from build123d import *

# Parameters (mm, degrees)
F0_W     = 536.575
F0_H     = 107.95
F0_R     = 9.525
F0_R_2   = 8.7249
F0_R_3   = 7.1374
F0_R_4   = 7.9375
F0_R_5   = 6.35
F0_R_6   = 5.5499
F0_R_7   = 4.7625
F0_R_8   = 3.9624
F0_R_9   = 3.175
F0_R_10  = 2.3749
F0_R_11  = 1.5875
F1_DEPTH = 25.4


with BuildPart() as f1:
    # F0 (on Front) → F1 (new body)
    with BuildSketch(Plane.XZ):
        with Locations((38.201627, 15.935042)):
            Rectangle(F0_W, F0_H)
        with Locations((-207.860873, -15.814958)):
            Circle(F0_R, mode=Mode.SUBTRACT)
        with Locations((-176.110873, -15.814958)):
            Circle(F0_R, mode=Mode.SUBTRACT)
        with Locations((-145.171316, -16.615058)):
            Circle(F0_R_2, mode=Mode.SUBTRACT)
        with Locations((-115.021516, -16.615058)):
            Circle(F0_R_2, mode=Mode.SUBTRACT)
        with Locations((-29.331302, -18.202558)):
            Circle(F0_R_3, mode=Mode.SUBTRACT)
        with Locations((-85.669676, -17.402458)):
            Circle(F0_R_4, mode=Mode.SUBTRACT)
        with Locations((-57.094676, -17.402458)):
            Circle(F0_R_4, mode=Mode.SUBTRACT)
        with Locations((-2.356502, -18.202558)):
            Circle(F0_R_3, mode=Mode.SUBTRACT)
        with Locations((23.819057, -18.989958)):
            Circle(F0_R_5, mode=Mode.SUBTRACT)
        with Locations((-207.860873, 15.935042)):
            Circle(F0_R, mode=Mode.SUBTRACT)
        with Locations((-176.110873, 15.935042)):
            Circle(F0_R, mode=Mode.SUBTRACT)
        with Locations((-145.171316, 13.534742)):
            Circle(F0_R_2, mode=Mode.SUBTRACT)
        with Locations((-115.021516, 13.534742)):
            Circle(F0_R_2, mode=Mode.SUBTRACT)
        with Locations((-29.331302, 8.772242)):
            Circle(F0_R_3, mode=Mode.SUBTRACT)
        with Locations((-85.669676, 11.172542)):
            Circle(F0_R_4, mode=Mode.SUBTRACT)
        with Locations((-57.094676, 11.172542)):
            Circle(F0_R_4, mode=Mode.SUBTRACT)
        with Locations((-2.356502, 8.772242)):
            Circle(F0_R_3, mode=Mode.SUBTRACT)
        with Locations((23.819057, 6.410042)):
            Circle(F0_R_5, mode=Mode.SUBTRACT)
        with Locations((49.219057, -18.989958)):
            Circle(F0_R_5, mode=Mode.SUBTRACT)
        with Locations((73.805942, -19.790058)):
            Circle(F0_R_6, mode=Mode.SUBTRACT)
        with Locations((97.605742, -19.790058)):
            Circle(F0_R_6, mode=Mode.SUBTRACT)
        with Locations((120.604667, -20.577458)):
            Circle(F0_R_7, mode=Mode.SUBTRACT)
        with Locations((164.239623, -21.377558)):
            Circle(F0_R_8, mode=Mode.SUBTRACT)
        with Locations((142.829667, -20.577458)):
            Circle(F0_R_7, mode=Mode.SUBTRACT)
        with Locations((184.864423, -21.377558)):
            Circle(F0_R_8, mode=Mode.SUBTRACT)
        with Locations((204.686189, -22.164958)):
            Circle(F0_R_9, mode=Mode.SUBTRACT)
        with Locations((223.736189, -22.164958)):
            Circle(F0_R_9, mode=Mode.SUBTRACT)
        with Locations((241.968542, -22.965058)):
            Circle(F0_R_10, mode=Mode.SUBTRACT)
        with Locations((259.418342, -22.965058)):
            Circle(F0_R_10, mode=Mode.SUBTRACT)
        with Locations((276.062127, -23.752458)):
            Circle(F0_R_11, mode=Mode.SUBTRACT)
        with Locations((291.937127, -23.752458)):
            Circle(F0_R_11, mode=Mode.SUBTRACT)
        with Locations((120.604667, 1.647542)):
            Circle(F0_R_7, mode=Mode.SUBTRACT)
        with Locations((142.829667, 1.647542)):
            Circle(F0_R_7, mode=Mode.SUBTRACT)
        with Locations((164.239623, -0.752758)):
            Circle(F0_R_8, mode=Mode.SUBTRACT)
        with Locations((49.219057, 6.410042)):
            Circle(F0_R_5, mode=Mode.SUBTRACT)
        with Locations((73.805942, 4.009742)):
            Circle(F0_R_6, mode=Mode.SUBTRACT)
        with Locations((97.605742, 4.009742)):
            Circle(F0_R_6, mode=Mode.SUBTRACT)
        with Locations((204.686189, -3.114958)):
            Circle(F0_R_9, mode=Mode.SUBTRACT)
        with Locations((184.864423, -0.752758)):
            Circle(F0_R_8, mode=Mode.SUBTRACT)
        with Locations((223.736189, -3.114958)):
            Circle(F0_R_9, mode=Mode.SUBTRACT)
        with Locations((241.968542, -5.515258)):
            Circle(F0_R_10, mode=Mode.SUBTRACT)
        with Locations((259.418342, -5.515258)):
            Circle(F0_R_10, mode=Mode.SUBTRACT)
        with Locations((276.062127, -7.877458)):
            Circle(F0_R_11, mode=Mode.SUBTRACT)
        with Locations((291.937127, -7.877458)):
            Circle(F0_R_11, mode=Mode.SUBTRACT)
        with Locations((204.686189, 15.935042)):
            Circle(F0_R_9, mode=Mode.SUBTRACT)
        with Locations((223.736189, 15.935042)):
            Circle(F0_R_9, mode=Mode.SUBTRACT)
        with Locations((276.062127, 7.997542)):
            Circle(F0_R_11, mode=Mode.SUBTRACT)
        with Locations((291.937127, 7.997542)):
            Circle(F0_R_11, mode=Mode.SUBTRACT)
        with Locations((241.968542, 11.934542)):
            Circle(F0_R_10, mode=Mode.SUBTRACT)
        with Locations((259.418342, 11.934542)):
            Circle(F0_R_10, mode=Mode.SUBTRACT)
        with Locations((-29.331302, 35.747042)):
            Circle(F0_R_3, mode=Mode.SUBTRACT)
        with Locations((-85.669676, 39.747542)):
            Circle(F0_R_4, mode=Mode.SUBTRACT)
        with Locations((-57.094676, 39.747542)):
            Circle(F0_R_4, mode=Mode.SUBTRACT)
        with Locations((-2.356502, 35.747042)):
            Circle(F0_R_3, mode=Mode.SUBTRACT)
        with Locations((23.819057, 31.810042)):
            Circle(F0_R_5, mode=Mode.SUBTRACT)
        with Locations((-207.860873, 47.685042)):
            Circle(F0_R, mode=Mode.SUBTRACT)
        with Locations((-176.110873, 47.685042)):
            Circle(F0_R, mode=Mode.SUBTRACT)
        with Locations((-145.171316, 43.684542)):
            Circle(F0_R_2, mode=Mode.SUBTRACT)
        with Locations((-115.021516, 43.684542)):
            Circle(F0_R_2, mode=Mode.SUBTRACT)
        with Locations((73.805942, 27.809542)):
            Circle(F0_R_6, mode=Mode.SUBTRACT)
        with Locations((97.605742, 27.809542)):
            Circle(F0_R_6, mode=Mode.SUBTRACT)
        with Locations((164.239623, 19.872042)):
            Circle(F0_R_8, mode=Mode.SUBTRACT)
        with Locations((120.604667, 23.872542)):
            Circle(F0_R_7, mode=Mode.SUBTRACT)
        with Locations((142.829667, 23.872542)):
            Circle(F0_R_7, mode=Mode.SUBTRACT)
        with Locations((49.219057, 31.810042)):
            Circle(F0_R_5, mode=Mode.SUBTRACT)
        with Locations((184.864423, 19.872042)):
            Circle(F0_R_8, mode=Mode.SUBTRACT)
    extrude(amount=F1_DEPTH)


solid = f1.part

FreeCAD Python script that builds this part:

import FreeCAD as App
import Part
import Sketcher

V = App.Vector
Q = App.Units.Quantity

doc = App.newDocument("Part")
body = doc.addObject("PartDesign::Body", "Body")

# Sketch on XZ plane
sketch1 = body.newObject("Sketcher::SketchObject", "Sketch")
sketch1.AttachmentSupport = (doc.getObject("XZ_Plane"), [""])
sketch1.MapMode = "FlatFace"
sketch1.addGeometry([
    Part.LineSegment(V(-230.1, 69.9, 0), V(-230.1, -38, 0)),  # 0
    Part.LineSegment(V(-230.1, -38, 0), V(306.5, -38, 0)),  # 1
    Part.LineSegment(V(306.5, -38, 0), V(306.5, 69.9, 0)),  # 2
    Part.LineSegment(V(306.5, 69.9, 0), V(-230.1, 69.9, 0)),  # 3
    Part.Circle(V(-207.9, -15.8, 0), V(0, 0, 1), 9.5),  # 4
    Part.Circle(V(-176.1, -15.8, 0), V(0, 0, 1), 9.5),  # 5
    Part.Circle(V(-145.2, -16.6, 0), V(0, 0, 1), 8.7),  # 6
    Part.Circle(V(-115, -16.6, 0), V(0, 0, 1), 8.7),  # 7
    Part.Circle(V(-85.7, -17.4, 0), V(0, 0, 1), 7.9),  # 8
    Part.Circle(V(-29.3, -18.2, 0), V(0, 0, 1), 7.1),  # 9
    Part.Circle(V(-57.1, -17.4, 0), V(0, 0, 1), 7.9),  # 10
    Part.Circle(V(-2.4, -18.2, 0), V(0, 0, 1), 7.1),  # 11
    Part.Circle(V(23.8, -19, 0), V(0, 0, 1), 6.3),  # 12
    Part.Circle(V(-145.2, 13.5, 0), V(0, 0, 1), 8.7),  # 13
    Part.Circle(V(-115, 13.5, 0), V(0, 0, 1), 8.7),  # 14
    Part.Circle(V(-29.3, 8.8, 0), V(0, 0, 1), 7.1),  # 15
    Part.Circle(V(-85.7, 11.2, 0), V(0, 0, 1), 7.9),  # 16
    Part.Circle(V(-57.1, 11.2, 0), V(0, 0, 1), 7.9),  # 17
    Part.Circle(V(-2.4, 8.8, 0), V(0, 0, 1), 7.1),  # 18
    Part.Circle(V(23.8, 6.4, 0), V(0, 0, 1), 6.3),  # 19
    Part.Circle(V(49.2, -19, 0), V(0, 0, 1), 6.3),  # 20
    Part.Circle(V(73.8, -19.8, 0), V(0, 0, 1), 5.5),  # 21
    Part.Circle(V(97.6, -19.8, 0), V(0, 0, 1), 5.5),  # 22
    Part.Circle(V(120.6, -20.6, 0), V(0, 0, 1), 4.8),  # 23
    Part.Circle(V(142.8, -20.6, 0), V(0, 0, 1), 4.8),  # 24
    Part.Circle(V(164.2, -21.4, 0), V(0, 0, 1), 4),  # 25
    Part.Circle(V(184.9, -21.4, 0), V(0, 0, 1), 4),  # 26
    Part.Circle(V(204.7, -22.2, 0), V(0, 0, 1), 3.2),  # 27
    Part.Circle(V(223.7, -22.2, 0), V(0, 0, 1), 3.2),  # 28
    Part.Circle(V(242, -23, 0), V(0, 0, 1), 2.4),  # 29
    Part.Circle(V(259.4, -23, 0), V(0, 0, 1), 2.4),  # 30
    Part.Circle(V(276.1, -23.8, 0), V(0, 0, 1), 1.6),  # 31
    Part.Circle(V(291.9, -23.8, 0), V(0, 0, 1), 1.6),  # 32
    Part.Circle(V(242, -5.5, 0), V(0, 0, 1), 2.4),  # 33
    Part.Circle(V(259.4, -5.5, 0), V(0, 0, 1), 2.4),  # 34
    Part.Circle(V(276.1, -7.9, 0), V(0, 0, 1), 1.6),  # 35
    Part.Circle(V(291.9, -7.9, 0), V(0, 0, 1), 1.6),  # 36
    Part.Circle(V(73.8, 4, 0), V(0, 0, 1), 5.5),  # 37
    Part.Circle(V(97.6, 4, 0), V(0, 0, 1), 5.5),  # 38
    Part.Circle(V(164.2, -0.8, 0), V(0, 0, 1), 4),  # 39
    Part.Circle(V(120.6, 1.6, 0), V(0, 0, 1), 4.8),  # 40
    Part.Circle(V(142.8, 1.6, 0), V(0, 0, 1), 4.8),  # 41
    Part.Circle(V(49.2, 6.4, 0), V(0, 0, 1), 6.3),  # 42
    Part.Circle(V(184.9, -0.8, 0), V(0, 0, 1), 4),  # 43
    Part.Circle(V(204.7, -3.1, 0), V(0, 0, 1), 3.2),  # 44
    Part.Circle(V(223.7, -3.1, 0), V(0, 0, 1), 3.2),  # 45
    Part.Circle(V(276.1, 8, 0), V(0, 0, 1), 1.6),  # 46
    Part.Circle(V(291.9, 8, 0), V(0, 0, 1), 1.6),  # 47
    Part.Circle(V(242, 11.9, 0), V(0, 0, 1), 2.4),  # 48
    Part.Circle(V(259.4, 11.9, 0), V(0, 0, 1), 2.4),  # 49
    Part.Circle(V(-207.9, 15.9, 0), V(0, 0, 1), 9.5),  # 50
    Part.Circle(V(-176.1, 15.9, 0), V(0, 0, 1), 9.5),  # 51
    Part.Circle(V(-29.3, 35.7, 0), V(0, 0, 1), 7.1),  # 52
    Part.Circle(V(-2.4, 35.7, 0), V(0, 0, 1), 7.1),  # 53
    Part.Circle(V(23.8, 31.8, 0), V(0, 0, 1), 6.3),  # 54
    Part.Circle(V(-145.2, 43.7, 0), V(0, 0, 1), 8.7),  # 55
    Part.Circle(V(-115, 43.7, 0), V(0, 0, 1), 8.7),  # 56
    Part.Circle(V(-207.9, 47.7, 0), V(0, 0, 1), 9.5),  # 57
    Part.Circle(V(-176.1, 47.7, 0), V(0, 0, 1), 9.5),  # 58
    Part.Circle(V(-85.7, 39.7, 0), V(0, 0, 1), 7.9),  # 59
    Part.Circle(V(-57.1, 39.7, 0), V(0, 0, 1), 7.9),  # 60
    Part.Circle(V(164.2, 19.9, 0), V(0, 0, 1), 4),  # 61
    Part.Circle(V(120.6, 23.9, 0), V(0, 0, 1), 4.8),  # 62
    Part.Circle(V(142.8, 23.9, 0), V(0, 0, 1), 4.8),  # 63
    Part.Circle(V(73.8, 27.8, 0), V(0, 0, 1), 5.5),  # 64
    Part.Circle(V(97.6, 27.8, 0), V(0, 0, 1), 5.5),  # 65
    Part.Circle(V(49.2, 31.8, 0), V(0, 0, 1), 6.3),  # 66
    Part.Circle(V(184.9, 19.9, 0), V(0, 0, 1), 4),  # 67
    Part.Circle(V(204.7, 15.9, 0), V(0, 0, 1), 3.2),  # 68
    Part.Circle(V(223.7, 15.9, 0), V(0, 0, 1), 3.2),  # 69
], False)
sketch1.addConstraint([
    Sketcher.Constraint("Coincident", 0, 2, 1, 1),
    Sketcher.Constraint("Coincident", 1, 2, 2, 1),
    Sketcher.Constraint("Coincident", 2, 2, 3, 1),
    Sketcher.Constraint("Coincident", 3, 2, 0, 1),
    Sketcher.Constraint("Vertical", 0),
    Sketcher.Constraint("Horizontal", 1),
    Sketcher.Constraint("Vertical", 2),
    Sketcher.Constraint("Horizontal", 3),
    Sketcher.Constraint("Equal", 4, 5),
    Sketcher.Constraint("Equal", 6, 7),
    Sketcher.Constraint("Equal", 8, 10),
    Sketcher.Constraint("Equal", 9, 11),
    Sketcher.Constraint("Equal", 7, 13),
    Sketcher.Constraint("Equal", 13, 14),
    Sketcher.Constraint("Equal", 11, 15),
    Sketcher.Constraint("Equal", 10, 16),
    Sketcher.Constraint("Equal", 16, 17),
    Sketcher.Constraint("Equal", 15, 18),
    Sketcher.Constraint("Equal", 12, 19),
    Sketcher.Constraint("Equal", 19, 20),
    Sketcher.Constraint("Equal", 21, 22),
    Sketcher.Constraint("Equal", 23, 24),
    Sketcher.Constraint("Equal", 25, 26),
    Sketcher.Constraint("Equal", 27, 28),
    Sketcher.Constraint("Equal", 29, 30),
    Sketcher.Constraint("Equal", 31, 32),
    Sketcher.Constraint("Equal", 30, 33),
    Sketcher.Constraint("Equal", 33, 34),
    Sketcher.Constraint("Equal", 32, 35),
    Sketcher.Constraint("Equal", 35, 36),
    Sketcher.Constraint("Equal", 22, 37),
    Sketcher.Constraint("Equal", 37, 38),
    Sketcher.Constraint("Equal", 26, 39),
    Sketcher.Constraint("Equal", 24, 40),
    Sketcher.Constraint("Equal", 40, 41),
    Sketcher.Constraint("Equal", 20, 42),
    Sketcher.Constraint("Equal", 39, 43),
    Sketcher.Constraint("Equal", 28, 44),
    Sketcher.Constraint("Equal", 44, 45),
    Sketcher.Constraint("Equal", 36, 46),
    Sketcher.Constraint("Equal", 46, 47),
    Sketcher.Constraint("Equal", 34, 48),
    Sketcher.Constraint("Equal", 48, 49),
    Sketcher.Constraint("Equal", 5, 50),
    Sketcher.Constraint("Equal", 50, 51),
    Sketcher.Constraint("Equal", 18, 52),
    Sketcher.Constraint("Equal", 52, 53),
    Sketcher.Constraint("Equal", 42, 54),
    Sketcher.Constraint("Equal", 14, 55),
    Sketcher.Constraint("Equal", 55, 56),
    Sketcher.Constraint("Equal", 51, 57),
    Sketcher.Constraint("Equal", 57, 58),
    Sketcher.Constraint("Equal", 17, 59),
    Sketcher.Constraint("Equal", 59, 60),
    Sketcher.Constraint("Equal", 43, 61),
    Sketcher.Constraint("Equal", 41, 62),
    Sketcher.Constraint("Equal", 62, 63),
    Sketcher.Constraint("Equal", 38, 64),
    Sketcher.Constraint("Equal", 64, 65),
    Sketcher.Constraint("Equal", 54, 66),
    Sketcher.Constraint("Equal", 61, 67),
    Sketcher.Constraint("Equal", 45, 68),
    Sketcher.Constraint("Equal", 68, 69),
    Sketcher.Constraint("Horizontal", 4, 3, 5, 3),
    Sketcher.Constraint("Horizontal", 6, 3, 7, 3),
    Sketcher.Constraint("Horizontal", 8, 3, 10, 3),
    Sketcher.Constraint("Horizontal", 9, 3, 11, 3),
    Sketcher.Constraint("Horizontal", 13, 3, 14, 3),
    Sketcher.Constraint("Horizontal", 16, 3, 17, 3),
    Sketcher.Constraint("Horizontal", 15, 3, 18, 3),
    Sketcher.Constraint("Horizontal", 12, 3, 20, 3),
    Sketcher.Constraint("Horizontal", 21, 3, 22, 3),
    Sketcher.Constraint("Horizontal", 23, 3, 24, 3),
    Sketcher.Constraint("Horizontal", 25, 3, 26, 3),
    Sketcher.Constraint("Horizontal", 27, 3, 28, 3),
    Sketcher.Constraint("Horizontal", 29, 3, 30, 3),
    Sketcher.Constraint("Horizontal", 31, 3, 32, 3),
    Sketcher.Constraint("Horizontal", 33, 3, 34, 3),
    Sketcher.Constraint("Horizontal", 35, 3, 36, 3),
    Sketcher.Constraint("Horizontal", 37, 3, 38, 3),
    Sketcher.Constraint("Horizontal", 40, 3, 41, 3),
    Sketcher.Constraint("Horizontal", 19, 3, 42, 3),
    Sketcher.Constraint("Horizontal", 39, 3, 43, 3),
    Sketcher.Constraint("Horizontal", 44, 3, 45, 3),
    Sketcher.Constraint("Horizontal", 46, 3, 47, 3),
    Sketcher.Constraint("Horizontal", 48, 3, 49, 3),
    Sketcher.Constraint("Horizontal", 50, 3, 51, 3),
    Sketcher.Constraint("Horizontal", 52, 3, 53, 3),
    Sketcher.Constraint("Horizontal", 55, 3, 56, 3),
    Sketcher.Constraint("Horizontal", 57, 3, 58, 3),
    Sketcher.Constraint("Horizontal", 59, 3, 60, 3),
    Sketcher.Constraint("Horizontal", 62, 3, 63, 3),
    Sketcher.Constraint("Horizontal", 64, 3, 65, 3),
    Sketcher.Constraint("Horizontal", 54, 3, 66, 3),
    Sketcher.Constraint("Horizontal", 61, 3, 67, 3),
    Sketcher.Constraint("Horizontal", 51, 3, 68, 3),
    Sketcher.Constraint("Horizontal", 68, 3, 69, 3),
    Sketcher.Constraint("Vertical", 6, 3, 13, 3),
    Sketcher.Constraint("Vertical", 7, 3, 14, 3),
    Sketcher.Constraint("Vertical", 9, 3, 15, 3),
    Sketcher.Constraint("Vertical", 8, 3, 16, 3),
    Sketcher.Constraint("Vertical", 10, 3, 17, 3),
    Sketcher.Constraint("Vertical", 11, 3, 18, 3),
    Sketcher.Constraint("Vertical", 12, 3, 19, 3),
    Sketcher.Constraint("Vertical", 29, 3, 33, 3),
    Sketcher.Constraint("Vertical", 30, 3, 34, 3),
    Sketcher.Constraint("Vertical", 31, 3, 35, 3),
    Sketcher.Constraint("Vertical", 32, 3, 36, 3),
    Sketcher.Constraint("Vertical", 21, 3, 37, 3),
    Sketcher.Constraint("Vertical", 22, 3, 38, 3),
    Sketcher.Constraint("Vertical", 25, 3, 39, 3),
    Sketcher.Constraint("Vertical", 23, 3, 40, 3),
    Sketcher.Constraint("Vertical", 24, 3, 41, 3),
    Sketcher.Constraint("Vertical", 20, 3, 42, 3),
    Sketcher.Constraint("Vertical", 26, 3, 43, 3),
    Sketcher.Constraint("Vertical", 27, 3, 44, 3),
    Sketcher.Constraint("Vertical", 28, 3, 45, 3),
    Sketcher.Constraint("Vertical", 35, 3, 46, 3),
    Sketcher.Constraint("Vertical", 36, 3, 47, 3),
    Sketcher.Constraint("Vertical", 33, 3, 48, 3),
    Sketcher.Constraint("Vertical", 34, 3, 49, 3),
    Sketcher.Constraint("Vertical", 4, 3, 50, 3),
    Sketcher.Constraint("Vertical", 5, 3, 51, 3),
    Sketcher.Constraint("Vertical", 15, 3, 52, 3),
    Sketcher.Constraint("Vertical", 18, 3, 53, 3),
    Sketcher.Constraint("Vertical", 19, 3, 54, 3),
    Sketcher.Constraint("Vertical", 13, 3, 55, 3),
    Sketcher.Constraint("Vertical", 14, 3, 56, 3),
    Sketcher.Constraint("Vertical", 50, 3, 57, 3),
    Sketcher.Constraint("Vertical", 51, 3, 58, 3),
    Sketcher.Constraint("Vertical", 16, 3, 59, 3),
    Sketcher.Constraint("Vertical", 17, 3, 60, 3),
    Sketcher.Constraint("Vertical", 39, 3, 61, 3),
    Sketcher.Constraint("Vertical", 40, 3, 62, 3),
    Sketcher.Constraint("Vertical", 41, 3, 63, 3),
    Sketcher.Constraint("Vertical", 37, 3, 64, 3),
    Sketcher.Constraint("Vertical", 38, 3, 65, 3),
    Sketcher.Constraint("Vertical", 42, 3, 66, 3),
    Sketcher.Constraint("Vertical", 43, 3, 67, 3),
    Sketcher.Constraint("Vertical", 44, 3, 68, 3),
    Sketcher.Constraint("Vertical", 45, 3, 69, 3),
    Sketcher.Constraint("Diameter", 12, Q("0.5 in")),
    Sketcher.Constraint("Diameter", 4, Q("0.75 in")),
    Sketcher.Constraint("Diameter", 27, Q("0.25 in")),
    Sketcher.Constraint("Diameter", 6, Q("0.687 in")),
    Sketcher.Constraint("Diameter", 8, Q("0.625 in")),
    Sketcher.Constraint("Diameter", 9, Q("0.562 in")),
    Sketcher.Constraint("Diameter", 21, Q("0.437 in")),
    Sketcher.Constraint("Diameter", 23, Q("0.375 in")),
    Sketcher.Constraint("Diameter", 25, Q("0.312 in")),
    Sketcher.Constraint("Diameter", 29, Q("0.187 in")),
    Sketcher.Constraint("Diameter", 31, Q("0.125 in")),
    Sketcher.Constraint("DistanceY", 0, 2, 0, 1, Q("4.25 in")),
    Sketcher.Constraint("DistanceX", 1, 1, 1, 2, Q("21.125 in")),
    Sketcher.Constraint("DistanceX", 11, 3, -1, 1, Q("2.356502 mm")),
    Sketcher.Constraint("DistanceY", 4, 3, -1, 1, Q("15.814958 mm")),
    Sketcher.Constraint("DistanceY", 6, 3, -1, 1, Q("16.615058 mm")),
    Sketcher.Constraint("DistanceY", 9, 3, -1, 1, Q("18.202558 mm")),
    Sketcher.Constraint("DistanceY", 12, 3, -1, 1, Q("18.989958 mm")),
    Sketcher.Constraint("DistanceY", -1, 1, 19, 3, Q("6.410042 mm")),
    Sketcher.Constraint("DistanceX", -1, 1, 21, 3, Q("73.805942 mm")),
    Sketcher.Constraint("DistanceY", 23, 3, -1, 1, Q("20.577458 mm")),
    Sketcher.Constraint("DistanceY", 25, 3, -1, 1, Q("21.377558 mm")),
    Sketcher.Constraint("DistanceX", -1, 1, 27, 3, Q("204.686189 mm")),
    Sketcher.Constraint("DistanceX", -1, 1, 28, 3, Q("223.736189 mm")),
    Sketcher.Constraint("DistanceX", -1, 1, 30, 3, Q("259.418342 mm")),
    Sketcher.Constraint("DistanceY", 31, 3, -1, 1, Q("23.752458 mm")),
    Sketcher.Constraint("DistanceY", 33, 3, -1, 1, Q("5.515258 mm")),
    Sketcher.Constraint("DistanceY", 39, 3, -1, 1, Q("0.752758 mm")),
    Sketcher.Constraint("DistanceY", 44, 3, -1, 1, Q("3.114958 mm")),
    Sketcher.Constraint("DistanceY", -1, 1, 50, 3, Q("15.935042 mm")),
    Sketcher.Constraint("DistanceY", -1, 1, 54, 3, Q("31.810042 mm")),
    Sketcher.Constraint("DistanceY", -1, 1, 62, 3, Q("23.872542 mm")),
    Sketcher.Constraint("DistanceX", 4, 3, -1, 1, Q("207.860873 mm")),
    Sketcher.Constraint("DistanceX", 5, 3, -1, 1, Q("176.110873 mm")),
    Sketcher.Constraint("DistanceX", 6, 3, -1, 1, Q("145.171316 mm")),
    Sketcher.Constraint("DistanceX", 7, 3, -1, 1, Q("115.021516 mm")),
    Sketcher.Constraint("DistanceX", 8, 3, -1, 1, Q("85.669676 mm")),
    Sketcher.Constraint("DistanceY", 8, 3, -1, 1, Q("17.402458 mm")),
    Sketcher.Constraint("DistanceX", 9, 3, -1, 1, Q("29.331302 mm")),
    Sketcher.Constraint("DistanceX", 10, 3, -1, 1, Q("57.094676 mm")),
    Sketcher.Constraint("DistanceX", -1, 1, 12, 3, Q("23.819057 mm")),
    Sketcher.Constraint("DistanceY", -1, 1, 13, 3, Q("13.534742 mm")),
    Sketcher.Constraint("DistanceY", -1, 1, 15, 3, Q("8.772242 mm")),
    Sketcher.Constraint("DistanceY", -1, 1, 16, 3, Q("11.172542 mm")),
    Sketcher.Constraint("DistanceX", -1, 1, 20, 3, Q("49.219057 mm")),
    Sketcher.Constraint("DistanceY", 21, 3, -1, 1, Q("19.790058 mm")),
    Sketcher.Constraint("DistanceX", -1, 1, 22, 3, Q("97.605742 mm")),
    Sketcher.Constraint("DistanceX", -1, 1, 23, 3, Q("120.604667 mm")),
    Sketcher.Constraint("DistanceX", -1, 1, 24, 3, Q("142.829667 mm")),
    Sketcher.Constraint("DistanceX", -1, 1, 25, 3, Q("164.239623 mm")),
    Sketcher.Constraint("DistanceX", -1, 1, 26, 3, Q("184.864423 mm")),
    Sketcher.Constraint("DistanceY", 27, 3, -1, 1, Q("22.164958 mm")),
    Sketcher.Constraint("DistanceX", -1, 1, 29, 3, Q("241.968542 mm")),
    Sketcher.Constraint("DistanceY", 29, 3, -1, 1, Q("22.965058 mm")),
    Sketcher.Constraint("DistanceX", -1, 1, 31, 3, Q("276.062127 mm")),
    Sketcher.Constraint("DistanceX", -1, 1, 32, 3, Q("291.937127 mm")),
    Sketcher.Constraint("DistanceY", 35, 3, -1, 1, Q("7.877458 mm")),
    Sketcher.Constraint("DistanceY", -1, 1, 37, 3, Q("4.009742 mm")),
    Sketcher.Constraint("DistanceY", -1, 1, 40, 3, Q("1.647542 mm")),
    Sketcher.Constraint("DistanceY", -1, 1, 46, 3, Q("7.997542 mm")),
    Sketcher.Constraint("DistanceY", -1, 1, 48, 3, Q("11.934542 mm")),
    Sketcher.Constraint("DistanceY", -1, 1, 52, 3, Q("35.747042 mm")),
    Sketcher.Constraint("DistanceY", -1, 1, 55, 3, Q("43.684542 mm")),
    Sketcher.Constraint("DistanceY", -1, 1, 57, 3, Q("47.685042 mm")),
    Sketcher.Constraint("DistanceY", -1, 1, 59, 3, Q("39.747542 mm")),
    Sketcher.Constraint("DistanceY", -1, 1, 61, 3, Q("19.872042 mm")),
    Sketcher.Constraint("DistanceY", -1, 1, 64, 3, Q("27.809542 mm")),
    Sketcher.Constraint("DistanceX", 0, 2, -1, 1, Q("230.085873 mm")),
    Sketcher.Constraint("DistanceY", 0, 2, -1, 1, Q("38.039958 mm")),
])
pad1 = body.newObject("PartDesign::Pad", "Pad")
pad1.Profile = sketch1
pad1.Length = Q("1 in")

doc.recompute()
